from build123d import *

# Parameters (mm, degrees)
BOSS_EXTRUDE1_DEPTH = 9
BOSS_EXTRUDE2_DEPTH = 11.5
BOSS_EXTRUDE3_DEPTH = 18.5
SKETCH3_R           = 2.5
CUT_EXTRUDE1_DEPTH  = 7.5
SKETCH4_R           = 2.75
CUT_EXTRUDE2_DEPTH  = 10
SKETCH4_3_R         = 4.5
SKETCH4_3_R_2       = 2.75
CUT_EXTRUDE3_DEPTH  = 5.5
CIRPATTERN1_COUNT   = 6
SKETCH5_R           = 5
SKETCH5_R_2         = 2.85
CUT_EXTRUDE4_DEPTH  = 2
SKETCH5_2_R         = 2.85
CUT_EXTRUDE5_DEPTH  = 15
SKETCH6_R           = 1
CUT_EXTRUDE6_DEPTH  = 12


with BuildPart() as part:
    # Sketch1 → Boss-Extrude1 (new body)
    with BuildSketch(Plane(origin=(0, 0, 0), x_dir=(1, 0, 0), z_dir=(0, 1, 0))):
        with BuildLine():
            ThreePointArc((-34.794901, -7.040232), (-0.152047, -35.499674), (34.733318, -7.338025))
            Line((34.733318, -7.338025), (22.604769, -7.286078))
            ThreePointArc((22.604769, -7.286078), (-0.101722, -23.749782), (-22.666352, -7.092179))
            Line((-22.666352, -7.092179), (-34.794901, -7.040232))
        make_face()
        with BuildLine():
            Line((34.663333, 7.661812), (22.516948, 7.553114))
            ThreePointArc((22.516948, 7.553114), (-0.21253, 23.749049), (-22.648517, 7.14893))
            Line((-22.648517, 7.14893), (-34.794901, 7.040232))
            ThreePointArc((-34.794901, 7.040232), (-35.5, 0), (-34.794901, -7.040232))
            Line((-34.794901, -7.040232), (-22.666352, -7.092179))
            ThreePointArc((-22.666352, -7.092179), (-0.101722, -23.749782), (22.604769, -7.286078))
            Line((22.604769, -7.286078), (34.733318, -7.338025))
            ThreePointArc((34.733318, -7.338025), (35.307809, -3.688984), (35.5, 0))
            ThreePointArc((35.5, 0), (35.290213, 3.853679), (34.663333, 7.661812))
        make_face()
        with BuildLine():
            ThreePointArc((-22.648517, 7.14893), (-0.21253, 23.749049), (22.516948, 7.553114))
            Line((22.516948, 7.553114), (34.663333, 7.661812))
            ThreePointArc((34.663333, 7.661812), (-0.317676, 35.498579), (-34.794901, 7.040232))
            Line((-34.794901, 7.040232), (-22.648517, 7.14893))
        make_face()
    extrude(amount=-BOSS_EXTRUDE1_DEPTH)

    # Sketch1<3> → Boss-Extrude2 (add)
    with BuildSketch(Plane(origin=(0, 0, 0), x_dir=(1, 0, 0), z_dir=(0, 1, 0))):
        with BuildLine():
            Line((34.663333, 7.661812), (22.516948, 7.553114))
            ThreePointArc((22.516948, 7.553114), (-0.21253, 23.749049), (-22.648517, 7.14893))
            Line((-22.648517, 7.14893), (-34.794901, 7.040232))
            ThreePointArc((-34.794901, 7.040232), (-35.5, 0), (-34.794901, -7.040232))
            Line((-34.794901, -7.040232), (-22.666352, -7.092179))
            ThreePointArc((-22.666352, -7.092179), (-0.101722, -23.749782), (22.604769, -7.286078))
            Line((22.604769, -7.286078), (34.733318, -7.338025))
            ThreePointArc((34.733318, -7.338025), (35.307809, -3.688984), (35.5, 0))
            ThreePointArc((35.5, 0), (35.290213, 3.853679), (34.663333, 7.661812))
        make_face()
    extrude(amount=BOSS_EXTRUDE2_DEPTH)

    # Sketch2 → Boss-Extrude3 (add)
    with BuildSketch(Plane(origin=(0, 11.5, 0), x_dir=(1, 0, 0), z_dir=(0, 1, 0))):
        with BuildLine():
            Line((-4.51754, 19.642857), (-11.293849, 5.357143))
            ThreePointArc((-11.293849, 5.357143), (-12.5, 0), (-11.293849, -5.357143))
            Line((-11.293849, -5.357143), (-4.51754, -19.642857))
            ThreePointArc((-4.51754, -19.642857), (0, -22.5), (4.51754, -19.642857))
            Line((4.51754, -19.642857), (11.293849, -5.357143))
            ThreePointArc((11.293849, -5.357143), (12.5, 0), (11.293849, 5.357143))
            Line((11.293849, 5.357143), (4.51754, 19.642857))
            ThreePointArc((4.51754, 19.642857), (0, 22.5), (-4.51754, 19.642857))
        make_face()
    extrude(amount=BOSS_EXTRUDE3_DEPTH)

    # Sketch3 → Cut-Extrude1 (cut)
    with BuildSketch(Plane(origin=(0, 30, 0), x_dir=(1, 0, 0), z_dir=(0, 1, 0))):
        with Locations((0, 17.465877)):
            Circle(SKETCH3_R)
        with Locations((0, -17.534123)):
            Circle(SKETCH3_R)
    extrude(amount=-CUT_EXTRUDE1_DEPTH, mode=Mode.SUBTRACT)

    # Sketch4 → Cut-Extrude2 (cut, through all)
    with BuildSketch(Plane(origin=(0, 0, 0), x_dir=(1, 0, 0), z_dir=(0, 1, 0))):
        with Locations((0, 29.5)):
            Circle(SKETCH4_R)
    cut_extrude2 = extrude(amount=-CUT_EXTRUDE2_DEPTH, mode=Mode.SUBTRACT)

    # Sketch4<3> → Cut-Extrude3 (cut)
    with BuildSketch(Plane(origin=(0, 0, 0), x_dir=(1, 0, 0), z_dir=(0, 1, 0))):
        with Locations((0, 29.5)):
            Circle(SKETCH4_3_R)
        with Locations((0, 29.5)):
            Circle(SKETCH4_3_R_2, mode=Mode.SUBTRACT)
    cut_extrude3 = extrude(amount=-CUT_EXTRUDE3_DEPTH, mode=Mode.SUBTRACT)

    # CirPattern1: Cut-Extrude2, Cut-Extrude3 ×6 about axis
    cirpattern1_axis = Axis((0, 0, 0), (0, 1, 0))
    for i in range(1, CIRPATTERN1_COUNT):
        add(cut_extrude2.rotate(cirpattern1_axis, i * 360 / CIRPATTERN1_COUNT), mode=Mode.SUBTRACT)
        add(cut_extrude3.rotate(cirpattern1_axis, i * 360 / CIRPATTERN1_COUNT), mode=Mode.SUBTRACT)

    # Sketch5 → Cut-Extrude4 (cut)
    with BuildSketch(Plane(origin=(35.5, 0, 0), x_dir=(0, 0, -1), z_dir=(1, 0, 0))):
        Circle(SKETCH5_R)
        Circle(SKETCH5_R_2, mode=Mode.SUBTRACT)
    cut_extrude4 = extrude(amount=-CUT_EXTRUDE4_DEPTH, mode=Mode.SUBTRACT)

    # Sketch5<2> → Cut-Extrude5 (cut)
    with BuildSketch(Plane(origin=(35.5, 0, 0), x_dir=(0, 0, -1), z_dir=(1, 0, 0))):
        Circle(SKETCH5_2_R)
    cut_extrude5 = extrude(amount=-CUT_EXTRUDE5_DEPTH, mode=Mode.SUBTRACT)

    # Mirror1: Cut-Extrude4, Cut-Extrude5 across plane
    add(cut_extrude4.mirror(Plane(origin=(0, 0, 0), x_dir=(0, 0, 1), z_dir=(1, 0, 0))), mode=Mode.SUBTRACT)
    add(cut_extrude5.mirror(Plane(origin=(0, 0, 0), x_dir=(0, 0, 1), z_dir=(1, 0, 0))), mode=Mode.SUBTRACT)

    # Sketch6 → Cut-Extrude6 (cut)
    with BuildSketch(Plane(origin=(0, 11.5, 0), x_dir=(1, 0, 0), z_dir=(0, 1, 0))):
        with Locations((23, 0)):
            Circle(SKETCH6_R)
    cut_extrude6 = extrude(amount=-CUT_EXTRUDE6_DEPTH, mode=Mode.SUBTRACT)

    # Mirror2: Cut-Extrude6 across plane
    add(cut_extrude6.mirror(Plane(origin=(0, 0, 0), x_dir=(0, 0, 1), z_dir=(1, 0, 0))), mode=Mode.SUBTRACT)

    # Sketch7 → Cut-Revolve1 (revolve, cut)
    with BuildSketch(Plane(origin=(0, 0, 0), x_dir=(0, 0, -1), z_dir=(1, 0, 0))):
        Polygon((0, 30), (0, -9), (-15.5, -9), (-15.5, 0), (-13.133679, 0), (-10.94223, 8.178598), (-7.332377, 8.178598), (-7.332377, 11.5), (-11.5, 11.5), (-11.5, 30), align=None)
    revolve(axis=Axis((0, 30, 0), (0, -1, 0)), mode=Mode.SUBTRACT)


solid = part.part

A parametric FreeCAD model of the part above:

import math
import FreeCAD as App
import Part
import Sketcher

V = App.Vector
Q = App.Units.Quantity


def add_polygon(sketch, points):
    """Adds a closed chain of lines whose ends are joined by coincident constraints."""
    first, n = sketch.GeometryCount, len(points)
    for a, b in zip(points, points[1:] + points[:1]):
        sketch.addGeometry(Part.LineSegment(App.Vector(*a, 0), App.Vector(*b, 0)), False)
    for i in range(n):
        sketch.addConstraint(Sketcher.Constraint("Coincident", first + i, 2, first + (i + 1) % n, 1))

doc = App.newDocument("Part")
params = doc.addObject("Spreadsheet::Sheet", "Params")
for row, (alias, value) in enumerate([
    ("sketch1_radius", "35.5 mm"),
    ("pad1_length", "9 mm"),
    ("sketch2_radius", "35.500002 mm"),
    ("sketch2_radius2", "23.75 mm"),
    ("sketch2_radius3", "23.750001 mm"),
    ("pad2_length", "11.5 mm"),
    ("sketch3_radius", "5.000001 mm"),
    ("pad3_length", "18.5 mm"),
    ("sketch4_diameter", "5 mm"),
    ("pocket1_length", "7.5 mm"),
    ("sketch5_diameter", "5.5 mm"),
    ("sketch6_diameter", "9 mm"),
    ("sketch6_diameter2", "5.5 mm"),
    ("pocket3_length", "5.5 mm"),
    ("sketch7_diameter", "10 mm"),
    ("sketch7_diameter2", "5.7 mm"),
    ("pocket4_length", "2 mm"),
    ("sketch8_diameter", "5.7 mm"),
    ("pocket5_length", "15 mm"),
    ("sketch9_diameter", "2 mm"),
    ("pocket6_length", "12 mm"),
    ("sketch10_width", "39 mm"),
    ("sketch10_width2", "9 mm"),
    ("sketch10_width3", "18.5 mm"),
    ("sketch10_height", "11.5 mm"),
    ("sketch10_height2", "15.5 mm"),
    ("groove_angle", "360 deg"),
], start=1):
    params.set(f"A{row}", alias)
    params.set(f"B{row}", "=" + value)
    params.setAlias(f"B{row}", alias)

body = doc.addObject("PartDesign::Body", "Body")

# Sketch on XZ plane
sketch1 = body.newObject("Sketcher::SketchObject", "Sketch")
sketch1.AttachmentSupport = (doc.getObject("XZ_Plane"), [""])
sketch1.MapMode = "FlatFace"
sketch1.addGeometry([
    Part.ArcOfCircle(Part.Circle(V(0, 0, 0), V(0, 0, 1), 35.5), math.radians(11.929323), math.radians(168.561476)),  # 0
    Part.ArcOfCircle(Part.Circle(V(-0.000041, -0.000005, 0), V(0, 0, 1), 35.500041), math.radians(0.000008), math.radians(11.929316)),  # 1
    Part.ArcOfCircle(Part.Circle(V(-0.000079, 0.000008, 0), V(0, 0, 1), 35.500079), math.radians(-12.463957), math.radians(-0.000012)),  # 2
    Part.ArcOfCircle(Part.Circle(V(0, 0, 0), V(0, 0, 1), 35.5), math.radians(-168.561477), math.radians(-12.463973)),  # 3
    Part.ArcOfCircle(Part.Circle(V(0.000002, 0, 0), V(0, 0, 1), 35.500002), math.radians(168.561477), math.radians(191.438523)),  # 4
], False)
sketch1.addConstraint([
    Sketcher.Constraint("Coincident", 0, 1, 1, 2),
    Sketcher.Constraint("Coincident", 1, 1, 2, 2),
    Sketcher.Constraint("Coincident", 2, 1, 3, 2),
    Sketcher.Constraint("Coincident", 3, 1, 4, 2),
    Sketcher.Constraint("Coincident", 4, 1, 0, 2),
    Sketcher.Constraint("Coincident", 0, 3, -1, 1),
    Sketcher.Constraint("Coincident", 3, 3, -1, 1),
    Sketcher.Constraint("Coincident", 4, 3, -1, 1),
    Sketcher.Constraint("PointOnObject", 1, 1, -1),
    Sketcher.Constraint("Radius", 0, Q("35.5 mm")),
    Sketcher.Constraint("DistanceX", -1, 1, 1, 1, Q("35.5 mm")),
    Sketcher.Constraint("Radius", 1, Q("35.500041 mm")),
    Sketcher.Constraint("Radius", 2, Q("35.500079 mm")),
    Sketcher.Constraint("DistanceX", 3, 1, -1, 1, Q("34.794901 mm")),
    Sketcher.Constraint("DistanceX", 4, 1, -1, 1, Q("34.794901 mm")),
    Sketcher.Constraint("DistanceY", 2, 1, -1, 1, Q("7.661812 mm")),
    Sketcher.Constraint("DistanceX", 0, 3, 0, 1, Q("34.733318 mm")),
])
sketch1.setExpression("Constraints[9]", "Params.sketch1_radius")
pad1 = body.newObject("PartDesign::Pad", "Pad")
pad1.Profile = sketch1
pad1.setExpression("Length", "Params.pad1_length")

# Sketch on XZ plane
sketch2 = body.newObject("Sketcher::SketchObject", "Sketch001")
sketch2.AttachmentSupport = (doc.getObject("XZ_Plane"), [""])
sketch2.MapMode = "FlatFace"
sketch2.addGeometry([
    Part.LineSegment(V(34.663333, -7.661812, 0), V(22.516948, -7.553114, 0)),  # 0
    Part.ArcOfCircle(Part.Circle(V(0, 0, 0), V(0, 0, 1), 23.75), math.radians(-162.481869), math.radians(-18.543579)),  # 1
    Part.LineSegment(V(-22.648517, -7.14893, 0), V(-34.794901, -7.040232, 0)),  # 2
    Part.ArcOfCircle(Part.Circle(V(0.000002, 0, 0), V(0, 0, 1), 35.500002), math.radians(168.561477), math.radians(191.438523)),  # 3
    Part.LineSegment(V(-34.794901, 7.040232, 0), V(-22.666352, 7.092179, 0)),  # 4
    Part.ArcOfCircle(Part.Circle(V(0, -0.000001, 0), V(0, 0, 1), 23.750001), math.radians(17.865421), math.radians(162.625379)),  # 5
    Part.LineSegment(V(22.604769, 7.286078, 0), V(34.733318, 7.338025, 0)),  # 6
    Part.ArcOfCircle(Part.Circle(V(-0.000041, -0.000005, 0), V(0, 0, 1), 35.500041), math.radians(0.000008), math.radians(11.929316)),  # 7
    Part.ArcOfCircle(Part.Circle(V(-0.000079, 0.000008, 0), V(0, 0, 1), 35.500079), math.radians(-12.463957), math.radians(-0.000012)),  # 8
], False)
sketch2.addConstraint([
    Sketcher.Constraint("Coincident", 0, 2, 1, 2),
    Sketcher.Constraint("Coincident", 1, 1, 2, 1),
    Sketcher.Constraint("Coincident", 2, 2, 3, 2),
    Sketcher.Constraint("Coincident", 3, 1, 4, 1),
    Sketcher.Constraint("Coincident", 4, 2, 5, 2),
    Sketcher.Constraint("Coincident", 5, 1, 6, 1),
    Sketcher.Constraint("Coincident", 6, 2, 7, 2),
    Sketcher.Constraint("Coincident", 7, 1, 8, 2),
    Sketcher.Constraint("Coincident", 8, 1, 0, 1),
    Sketcher.Constraint("Coincident", 1, 3, -1, 1),
    Sketcher.Constraint("Coincident", 3, 3, -1, 1),
    Sketcher.Constraint("Coincident", 5, 3, -1, 1),
    Sketcher.Constraint("PointOnObject", 7, 1, -1),
    Sketcher.Constraint("Radius", 3, Q("35.500002 mm")),
    Sketcher.Constraint("Radius", 1, Q("23.75 mm")),
    Sketcher.Constraint("Radius", 5, Q("23.750001 mm")),
    Sketcher.Constraint("DistanceX", -1, 1, 7, 1, Q("35.5 mm")),
    Sketcher.Constraint("Radius", 7, Q("35.500041 mm")),
    Sketcher.Constraint("Radius", 8, Q("35.500079 mm")),
    Sketcher.Constraint("DistanceX", 2, 2, -1, 1, Q("34.794901 mm")),
    Sketcher.Constraint("DistanceX", 3, 1, -1, 1, Q("34.794901 mm")),
    Sketcher.Constraint("Distance", 0, Q("12.146871 mm")),
    Sketcher.Constraint("Distance", 2, Q("12.14687 mm")),
    Sketcher.Constraint("Distance", 4, Q("12.12866 mm")),
    Sketcher.Constraint("Distance", 6, Q("12.12866 mm")),
    Sketcher.Constraint("DistanceX", -1, 1, 5, 1, Q("22.604769 mm")),
    Sketcher.Constraint("DistanceY", 8, 1, -1, 1, Q("7.661812 mm")),
    Sketcher.Constraint("DistanceX", 5, 3, 0, 2, Q("22.516948 mm")),
    Sketcher.Constraint("DistanceY", 0, 2, 7, 3, Q("7.553109 mm")),
])
sketch2.setExpression("Constraints[13]", "Params.sketch2_radius")
sketch2.setExpression("Constraints[14]", "Params.sketch2_radius2")
sketch2.setExpression("Constraints[15]", "Params.sketch2_radius3")
pad2 = body.newObject("PartDesign::Pad", "Pad001")
pad2.Profile = sketch2
pad2.setExpression("Length", "Params.pad2_length")
pad2.Reversed = True

# Sketch on XZ plane
sketch3 = body.newObject("Sketcher::SketchObject", "Sketch002")
sketch3.AttachmentSupport = (doc.getObject("XZ_Plane"), [""])
sketch3.MapMode = "FlatFace"
sketch3.AttachmentOffset = App.Placement(V(0, 0, -11.5), App.Rotation())
sketch3.addGeometry([
    Part.LineSegment(V(-5, -20, 0), V(-11, -5, 0)),  # 0
    Part.ArcOfCircle(Part.Circle(V(0, 0, 0), V(0, 0, 1), 13), math.radians(155), math.radians(205)),  # 1
    Part.LineSegment(V(-11, 5, 0), V(-5, 20, 0)),  # 2
    Part.ArcOfCircle(Part.Circle(V(0, 17, 0), V(0, 0, 1), 5), math.radians(25), math.radians(155)),  # 3
    Part.LineSegment(V(5, 20, 0), V(11, 5, 0)),  # 4
    Part.ArcOfCircle(Part.Circle(V(0, 0, 0), V(0, 0, 1), 13), math.radians(-25), math.radians(25)),  # 5
    Part.LineSegment(V(11, -5, 0), V(5, -20, 0)),  # 6
    Part.ArcOfCircle(Part.Circle(V(0, -17, 0), V(0, 0, 1), 5), math.radians(-155), math.radians(-25)),  # 7
], False)
sketch3.addConstraint([
    Sketcher.Constraint("Tangent", 0, 2, 1, 2),
    Sketcher.Constraint("Tangent", 1, 1, 2, 1),
    Sketcher.Constraint("Tangent", 2, 2, 3, 2),
    Sketcher.Constraint("Tangent", 3, 1, 4, 1),
    Sketcher.Constraint("Tangent", 4, 2, 5, 2),
    Sketcher.Constraint("Tangent", 5, 1, 6, 1),
    Sketcher.Constraint("Tangent", 6, 2, 7, 2),
    Sketcher.Constraint("Tangent", 7, 1, 0, 1),
    Sketcher.Constraint("Coincident", 1, 3, -1, 1),
    Sketcher.Constraint("Coincident", 5, 3, -1, 1),
    Sketcher.Constraint("Equal", 1, 5),
    Sketcher.Constraint("Equal", 3, 7),
    Sketcher.Constraint("Symmetric", 3, 3, 7, 3, -1, 1),
    Sketcher.Constraint("PointOnObject", 3, 3, -2),
    Sketcher.Constraint("Radius", 3, Q("5.000001 mm")),
    Sketcher.Constraint("DistanceY", 7, 3, 3, 3, Q("34.999999 mm")),
    Sketcher.Constraint("DistanceY", 0, 2, 2, 2, Q("25 mm")),
])
sketch3.setExpression("Constraints[14]", "Params.sketch3_radius")
pad3 = body.newObject("PartDesign::Pad", "Pad002")
pad3.Profile = sketch3
pad3.setExpression("Length", "Params.pad3_length")
pad3.Reversed = True

# Sketch on XZ plane
sketch4 = body.newObject("Sketcher::SketchObject", "Sketch003")
sketch4.AttachmentSupport = (doc.getObject("XZ_Plane"), [""])
sketch4.MapMode = "FlatFace"
sketch4.AttachmentOffset = App.Placement(V(0, 0, -30), App.Rotation())
sketch4.addGeometry([
    Part.Circle(V(0, -17.5, 0), V(0, 0, 1), 2.5),
    Part.Circle(V(0, 17.5, 0), V(0, 0, 1), 2.5),
], False)
sketch4.addConstraint([
    Sketcher.Constraint("Equal", 0, 1),
    Sketcher.Constraint("PointOnObject", 0, 3, -2),
    Sketcher.Constraint("PointOnObject", 1, 3, -2),
    Sketcher.Constraint("Diameter", 0, Q("5 mm")),
    Sketcher.Constraint("DistanceY", 0, 3, 1, 3, Q("35 mm")),
    Sketcher.Constraint("DistanceY", 0, 3, -1, 1, Q("17.465877 mm")),
])
sketch4.setExpression("Constraints[3]", "Params.sketch4_diameter")
pocket1 = body.newObject("PartDesign::Pocket", "Pocket")
pocket1.Profile = sketch4
pocket1.setExpression("Length", "Params.pocket1_length")
pocket1.Reversed = True

# Sketch on XZ plane
sketch5 = body.newObject("Sketcher::SketchObject", "Sketch004")
sketch5.AttachmentSupport = (doc.getObject("XZ_Plane"), [""])
sketch5.MapMode = "FlatFace"
sketch5.addGeometry(Part.Circle(V(0, -29.5, 0), V(0, 0, 1), 2.8), False)
sketch5.addConstraint([
    Sketcher.Constraint("PointOnObject", 0, 3, -2),
    Sketcher.Constraint("Diameter", 0, Q("5.5 mm")),
    Sketcher.Constraint("DistanceY", 0, 3, -1, 1, Q("29.5 mm")),
])
sketch5.setExpression("Constraints[1]", "Params.sketch5_diameter")
pocket2 = body.newObject("PartDesign::Pocket", "Pocket001")
pocket2.Profile = sketch5
pocket2.Type = "ThroughAll"
pocket2.Reversed = True

# Sketch on XZ plane
sketch6 = body.newObject("Sketcher::SketchObject", "Sketch005")
sketch6.AttachmentSupport = (doc.getObject("XZ_Plane"), [""])
sketch6.MapMode = "FlatFace"
sketch6.addGeometry([
    Part.Circle(V(0, -29.5, 0), V(0, 0, 1), 4.5),
    Part.Circle(V(0, -29.5, 0), V(0, 0, 1), 2.8),
], False)
sketch6.addConstraint([
    Sketcher.Constraint("Coincident", 1, 3, 0, 3),
    Sketcher.Constraint("PointOnObject", 0, 3, -2),
    Sketcher.Constraint("Diameter", 0, Q("9 mm")),
    Sketcher.Constraint("Diameter", 1, Q("5.5 mm")),
    Sketcher.Constraint("DistanceY", 0, 3, -1, 1, Q("29.5 mm")),
])
sketch6.setExpression("Constraints[2]", "Params.sketch6_diameter")
sketch6.setExpression("Constraints[3]", "Params.sketch6_diameter2")
pocket3 = body.newObject("PartDesign::Pocket", "Pocket002")
pocket3.Profile = sketch6
pocket3.setExpression("Length", "Params.pocket3_length")
pocket3.Reversed = True
doc.recompute()

polarpattern = body.newObject("PartDesign::PolarPattern", "PolarPattern")
polarpattern.Originals = [pocket2, pocket3]
polarpattern.Axis = (doc.getObject("Y_Axis"), [""])
polarpattern.Angle = 360
polarpattern.Occurrences = 6
body.Tip = polarpattern

# Sketch on YZ plane
sketch7 = body.newObject("Sketcher::SketchObject", "Sketch006")
sketch7.AttachmentSupport = (doc.getObject("YZ_Plane"), [""])
sketch7.MapMode = "FlatFace"
sketch7.AttachmentOffset = App.Placement(V(0, 0, 35.5), App.Rotation())
sketch7.addGeometry([
    Part.Circle(V(0, 0, 0), V(0, 0, 1), 5),
    Part.Circle(V(0, 0, 0), V(0, 0, 1), 2.9),
], False)
sketch7.addConstraint([
    Sketcher.Constraint("Coincident", 0, 3, -1, 1),
    Sketcher.Constraint("Coincident", 1, 3, -1, 1),
    Sketcher.Constraint("Diameter", 0, Q("10 mm")),
    Sketcher.Constraint("Diameter", 1, Q("5.7 mm")),
])
sketch7.setExpression("Constraints[2]", "Params.sketch7_diameter")
sketch7.setExpression("Constraints[3]", "Params.sketch7_diameter2")
pocket4 = body.newObject("PartDesign::Pocket", "Pocket003")
pocket4.Profile = sketch7
pocket4.setExpression("Length", "Params.pocket4_length")

# Sketch on YZ plane
sketch8 = body.newObject("Sketcher::SketchObject", "Sketch007")
sketch8.AttachmentSupport = (doc.getObject("YZ_Plane"), [""])
sketch8.MapMode = "FlatFace"
sketch8.AttachmentOffset = App.Placement(V(0, 0, 35.5), App.Rotation())
sketch8.addGeometry(Part.Circle(V(0, 0, 0), V(0, 0, 1), 2.9), False)
sketch8.addConstraint([
    Sketcher.Constraint("Coincident", 0, 3, -1, 1),
    Sketcher.Constraint("Diameter", 0, Q("5.7 mm")),
])
sketch8.setExpression("Constraints[1]", "Params.sketch8_diameter")
pocket5 = body.newObject("PartDesign::Pocket", "Pocket004")
pocket5.Profile = sketch8
pocket5.setExpression("Length", "Params.pocket5_length")
doc.recompute()

mirrored = body.newObject("PartDesign::Mirrored", "Mirrored")
mirrored.Originals = [pocket4, pocket5]
mirrored.MirrorPlane = (doc.getObject("YZ_Plane"), [""])
body.Tip = mirrored

# Sketch on XZ plane
sketch9 = body.newObject("Sketcher::SketchObject", "Sketch008")
sketch9.AttachmentSupport = (doc.getObject("XZ_Plane"), [""])
sketch9.MapMode = "FlatFace"
sketch9.AttachmentOffset = App.Placement(V(0, 0, -11.5), App.Rotation())
sketch9.addGeometry(Part.Circle(V(23, 0, 0), V(0, 0, 1), 1), False)
sketch9.addConstraint([
    Sketcher.Constraint("PointOnObject", 0, 3, -1),
    Sketcher.Constraint("Diameter", 0, Q("2 mm")),
    Sketcher.Constraint("DistanceX", -1, 1, 0, 3, Q("23 mm")),
])
sketch9.setExpression("Constraints[1]", "Params.sketch9_diameter")
pocket6 = body.newObject("PartDesign::Pocket", "Pocket005")
pocket6.Profile = sketch9
pocket6.setExpression("Length", "Params.pocket6_length")
pocket6.Reversed = True
doc.recompute()

mirrored2 = body.newObject("PartDesign::Mirrored", "Mirrored001")
mirrored2.Originals = [pocket6]
mirrored2.MirrorPlane = (doc.getObject("YZ_Plane"), [""])
body.Tip = mirrored2

# Sketch on YZ plane
sketch10 = body.newObject("Sketcher::SketchObject", "Sketch009")
sketch10.AttachmentSupport = (doc.getObject("YZ_Plane"), [""])
sketch10.MapMode = "FlatFace"
add_polygon(sketch10, [(-9, 0), (30, 0), (30, 11.5), (11.5, 11.5), (11.5, 7.3), (8.2, 7.3), (8.2, 10.9), (0, 13.1), (0, 15.5), (-9, 15.5)])  # lines 0-9
sketch10.addConstraint([
    Sketcher.Constraint("Horizontal", 0),
    Sketcher.Constraint("Vertical", 1),
    Sketcher.Constraint("Horizontal", 2),
    Sketcher.Constraint("Vertical", 3),
    Sketcher.Constraint("Horizontal", 4),
    Sketcher.Constraint("Vertical", 5),
    Sketcher.Constraint("Vertical", 7),
    Sketcher.Constraint("Horizontal", 8),
    Sketcher.Constraint("Vertical", 9),
    Sketcher.Constraint("PointOnObject", 0, 2, -1),
    Sketcher.Constraint("PointOnObject", 6, 2, -2),
    Sketcher.Constraint("DistanceX", 0, 1, 0, 2, Q("39 mm")),
    Sketcher.Constraint("DistanceX", 8, 2, 8, 1, Q("9 mm")),
    Sketcher.Constraint("Angle", 6, Q("164.999998 deg")),
    Sketcher.Constraint("DistanceX", 2, 2, 2, 1, Q("18.5 mm")),
    Sketcher.Constraint("DistanceY", 1, 1, 1, 2, Q("11.5 mm")),
    Sketcher.Constraint("DistanceY", 9, 2, 9, 1, Q("15.5 mm")),
    Sketcher.Constraint("DistanceY", 7, 1, 7, 2, Q("2.366321 mm")),
    Sketcher.Constraint("DistanceX", 4, 2, 1, 2, Q("21.821402 mm")),
    Sketcher.Constraint("DistanceY", 3, 2, 3, 1, Q("4.167623 mm")),
])
sketch10.setExpression("Constraints[21]", "Params.sketch10_width")
sketch10.setExpression("Constraints[22]", "Params.sketch10_width2")
sketch10.setExpression("Constraints[24]", "Params.sketch10_width3")
sketch10.setExpression("Constraints[25]", "Params.sketch10_height")
sketch10.setExpression("Constraints[26]", "Params.sketch10_height2")
groove = body.newObject("PartDesign::Groove", "Groove")
groove.Profile = sketch10
groove.ReferenceAxis = (sketch10, ["H_Axis"])
groove.setExpression("Angle", "Params.groove_angle")

doc.recompute()
